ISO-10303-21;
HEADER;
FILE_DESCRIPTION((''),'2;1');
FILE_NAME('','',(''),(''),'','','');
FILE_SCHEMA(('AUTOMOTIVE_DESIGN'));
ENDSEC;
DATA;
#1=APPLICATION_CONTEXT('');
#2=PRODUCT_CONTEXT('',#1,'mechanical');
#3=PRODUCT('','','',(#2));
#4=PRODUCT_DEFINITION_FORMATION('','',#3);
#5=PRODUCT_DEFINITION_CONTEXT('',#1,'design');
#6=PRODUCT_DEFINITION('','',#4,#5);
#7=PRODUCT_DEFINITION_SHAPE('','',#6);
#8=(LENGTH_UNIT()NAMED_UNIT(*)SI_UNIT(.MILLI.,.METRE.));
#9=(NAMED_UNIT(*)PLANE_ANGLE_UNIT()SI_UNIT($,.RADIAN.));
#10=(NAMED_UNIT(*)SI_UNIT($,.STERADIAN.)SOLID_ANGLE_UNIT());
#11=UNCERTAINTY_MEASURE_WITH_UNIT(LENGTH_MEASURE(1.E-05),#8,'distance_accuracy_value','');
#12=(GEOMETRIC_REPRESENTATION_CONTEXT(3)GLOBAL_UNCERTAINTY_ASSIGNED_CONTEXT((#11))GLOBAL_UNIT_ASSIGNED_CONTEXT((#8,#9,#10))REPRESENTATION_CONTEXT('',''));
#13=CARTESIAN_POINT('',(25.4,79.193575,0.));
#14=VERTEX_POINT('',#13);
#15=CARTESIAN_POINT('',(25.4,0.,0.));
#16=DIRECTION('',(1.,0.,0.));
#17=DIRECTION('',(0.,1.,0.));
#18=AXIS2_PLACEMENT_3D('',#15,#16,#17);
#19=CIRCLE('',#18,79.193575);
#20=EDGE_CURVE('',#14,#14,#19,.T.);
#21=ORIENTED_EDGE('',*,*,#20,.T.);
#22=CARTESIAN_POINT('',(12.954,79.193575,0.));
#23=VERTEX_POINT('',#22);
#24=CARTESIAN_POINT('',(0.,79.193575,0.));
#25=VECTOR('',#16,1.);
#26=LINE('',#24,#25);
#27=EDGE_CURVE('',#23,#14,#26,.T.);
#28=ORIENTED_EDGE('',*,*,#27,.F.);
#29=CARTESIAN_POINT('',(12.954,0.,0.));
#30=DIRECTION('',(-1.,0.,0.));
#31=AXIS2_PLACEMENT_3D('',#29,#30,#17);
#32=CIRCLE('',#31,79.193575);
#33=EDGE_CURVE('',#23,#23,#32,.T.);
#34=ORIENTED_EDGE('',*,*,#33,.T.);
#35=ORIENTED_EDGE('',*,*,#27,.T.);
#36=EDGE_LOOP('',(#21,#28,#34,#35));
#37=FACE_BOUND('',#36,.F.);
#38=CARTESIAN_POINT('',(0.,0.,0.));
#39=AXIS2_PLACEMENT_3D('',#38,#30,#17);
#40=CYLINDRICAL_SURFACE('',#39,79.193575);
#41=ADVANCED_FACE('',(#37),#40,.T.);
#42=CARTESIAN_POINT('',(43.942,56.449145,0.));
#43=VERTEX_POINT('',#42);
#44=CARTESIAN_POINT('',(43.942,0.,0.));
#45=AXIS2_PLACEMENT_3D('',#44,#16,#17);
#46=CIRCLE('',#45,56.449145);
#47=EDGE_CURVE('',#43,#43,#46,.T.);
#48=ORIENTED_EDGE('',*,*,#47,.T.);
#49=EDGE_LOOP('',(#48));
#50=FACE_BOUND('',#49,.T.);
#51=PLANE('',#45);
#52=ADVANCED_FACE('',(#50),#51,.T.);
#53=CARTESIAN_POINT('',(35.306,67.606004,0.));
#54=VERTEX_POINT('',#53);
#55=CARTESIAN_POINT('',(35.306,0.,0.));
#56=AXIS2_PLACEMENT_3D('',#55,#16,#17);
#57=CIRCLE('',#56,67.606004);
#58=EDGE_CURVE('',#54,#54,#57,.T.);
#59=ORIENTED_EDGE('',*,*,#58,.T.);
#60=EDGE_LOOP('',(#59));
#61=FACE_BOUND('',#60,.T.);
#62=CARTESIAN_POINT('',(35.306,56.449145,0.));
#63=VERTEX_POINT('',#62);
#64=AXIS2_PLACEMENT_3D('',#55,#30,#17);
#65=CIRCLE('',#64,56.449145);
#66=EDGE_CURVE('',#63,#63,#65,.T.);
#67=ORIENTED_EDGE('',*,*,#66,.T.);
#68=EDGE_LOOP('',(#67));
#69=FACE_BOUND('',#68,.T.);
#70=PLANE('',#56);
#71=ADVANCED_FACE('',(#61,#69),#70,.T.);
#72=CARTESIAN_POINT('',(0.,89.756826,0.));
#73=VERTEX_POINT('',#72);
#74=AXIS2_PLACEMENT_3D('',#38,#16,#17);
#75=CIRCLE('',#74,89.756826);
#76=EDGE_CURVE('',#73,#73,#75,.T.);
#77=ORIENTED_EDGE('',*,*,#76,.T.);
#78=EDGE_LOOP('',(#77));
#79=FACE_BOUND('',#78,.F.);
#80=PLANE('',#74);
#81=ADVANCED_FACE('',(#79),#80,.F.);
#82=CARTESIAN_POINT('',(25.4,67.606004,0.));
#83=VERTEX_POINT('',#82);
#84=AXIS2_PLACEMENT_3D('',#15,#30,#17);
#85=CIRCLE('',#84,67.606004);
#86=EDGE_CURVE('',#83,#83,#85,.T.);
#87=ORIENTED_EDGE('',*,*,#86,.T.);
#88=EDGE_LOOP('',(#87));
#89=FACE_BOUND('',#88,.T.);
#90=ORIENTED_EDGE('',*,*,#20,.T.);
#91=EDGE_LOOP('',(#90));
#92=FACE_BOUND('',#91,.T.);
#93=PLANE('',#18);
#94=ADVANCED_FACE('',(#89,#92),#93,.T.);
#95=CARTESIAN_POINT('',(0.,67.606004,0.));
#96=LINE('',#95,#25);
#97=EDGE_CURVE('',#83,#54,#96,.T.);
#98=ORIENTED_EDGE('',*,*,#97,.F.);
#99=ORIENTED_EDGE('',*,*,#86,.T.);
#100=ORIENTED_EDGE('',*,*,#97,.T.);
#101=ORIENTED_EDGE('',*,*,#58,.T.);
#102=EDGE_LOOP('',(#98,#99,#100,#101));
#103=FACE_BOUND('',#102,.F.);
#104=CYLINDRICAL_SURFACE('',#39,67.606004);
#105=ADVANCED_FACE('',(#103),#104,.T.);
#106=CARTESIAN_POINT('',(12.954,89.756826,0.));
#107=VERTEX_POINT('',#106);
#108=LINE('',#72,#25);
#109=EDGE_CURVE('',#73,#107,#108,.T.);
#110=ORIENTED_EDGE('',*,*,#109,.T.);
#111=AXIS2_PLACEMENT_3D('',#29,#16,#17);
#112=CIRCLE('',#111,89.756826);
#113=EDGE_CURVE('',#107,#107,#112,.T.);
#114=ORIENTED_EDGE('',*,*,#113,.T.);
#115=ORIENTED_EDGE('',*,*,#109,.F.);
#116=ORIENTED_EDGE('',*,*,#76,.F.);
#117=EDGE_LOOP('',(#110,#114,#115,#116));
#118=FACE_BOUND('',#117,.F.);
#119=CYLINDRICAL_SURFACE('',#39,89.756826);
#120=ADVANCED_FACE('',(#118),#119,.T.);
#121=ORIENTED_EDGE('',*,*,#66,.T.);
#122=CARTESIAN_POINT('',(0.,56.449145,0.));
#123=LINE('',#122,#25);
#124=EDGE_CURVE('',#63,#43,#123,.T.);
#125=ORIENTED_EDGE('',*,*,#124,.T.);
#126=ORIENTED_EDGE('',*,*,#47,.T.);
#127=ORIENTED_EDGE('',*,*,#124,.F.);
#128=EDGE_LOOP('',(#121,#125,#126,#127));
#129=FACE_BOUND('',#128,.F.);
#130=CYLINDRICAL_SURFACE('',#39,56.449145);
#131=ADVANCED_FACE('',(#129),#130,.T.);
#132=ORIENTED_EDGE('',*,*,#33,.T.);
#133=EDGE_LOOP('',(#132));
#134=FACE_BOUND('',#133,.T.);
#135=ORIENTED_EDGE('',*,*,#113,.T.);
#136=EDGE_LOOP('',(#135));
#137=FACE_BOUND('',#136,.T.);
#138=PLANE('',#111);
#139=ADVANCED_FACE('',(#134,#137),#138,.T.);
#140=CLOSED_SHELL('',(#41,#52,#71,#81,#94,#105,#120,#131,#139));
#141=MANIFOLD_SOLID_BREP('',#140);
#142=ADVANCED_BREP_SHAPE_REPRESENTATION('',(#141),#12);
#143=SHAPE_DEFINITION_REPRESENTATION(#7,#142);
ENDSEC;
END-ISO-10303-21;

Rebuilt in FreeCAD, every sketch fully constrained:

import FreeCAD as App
import Part
import Sketcher

doc = App.newDocument("Part")
params = doc.addObject("Spreadsheet::Sheet", "Params")
for row, (alias, value) in enumerate([
    ("pad1_length", "0.51 in"),
    ("pad2_length", "1 in"),
    ("pad3_length", "1.39 in"),
    ("pad4_length", "1.73 in"),
], start=1):
    params.set(f"A{row}", alias)
    params.set(f"B{row}", "=" + value)
    params.setAlias(f"B{row}", alias)

body = doc.addObject("PartDesign::Body", "Body")

sketch1 = body.newObject("Sketcher::SketchObject", "Sketch")
sketch1.AttachmentSupport = (doc.getObject("YZ_Plane"), [""])
sketch1.MapMode = "FlatFace"
sketch1.addGeometry(Part.Circle(App.Vector(0, 0, 0), App.Vector(0, 0, 1), 89.756826), False)
sketch1.addConstraint([
    Sketcher.Constraint("Coincident", 0, 3, -1, 1),
    Sketcher.Constraint("Diameter", 0, 179.513652),
])
pad1 = body.newObject("PartDesign::Pad", "Pad")
pad1.Profile = sketch1
pad1.setExpression("Length", "Params.pad1_length")

sketch2 = body.newObject("Sketcher::SketchObject", "Sketch001")
sketch2.AttachmentSupport = (doc.getObject("YZ_Plane"), [""])
sketch2.MapMode = "FlatFace"
sketch2.addGeometry(Part.Circle(App.Vector(0, 0, 0), App.Vector(0, 0, 1), 79.193575), False)
sketch2.addConstraint([
    Sketcher.Constraint("Coincident", 0, 3, -1, 1),
    Sketcher.Constraint("Diameter", 0, 158.38715),
])
pad2 = body.newObject("PartDesign::Pad", "Pad001")
pad2.Profile = sketch2
pad2.setExpression("Length", "Params.pad2_length")

sketch3 = body.newObject("Sketcher::SketchObject", "Sketch002")
sketch3.AttachmentSupport = (doc.getObject("YZ_Plane"), [""])
sketch3.MapMode = "FlatFace"
sketch3.addGeometry(Part.Circle(App.Vector(0, 0, 0), App.Vector(0, 0, 1), 67.606004), False)
sketch3.addConstraint([
    Sketcher.Constraint("Coincident", 0, 3, -1, 1),
    Sketcher.Constraint("Diameter", 0, 135.212008),
])
pad3 = body.newObject("PartDesign::Pad", "Pad002")
pad3.Profile = sketch3
pad3.setExpression("Length", "Params.pad3_length")

sketch4 = body.newObject("Sketcher::SketchObject", "Sketch003")
sketch4.AttachmentSupport = (doc.getObject("YZ_Plane"), [""])
sketch4.MapMode = "FlatFace"
sketch4.addGeometry(Part.Circle(App.Vector(0, 0, 0), App.Vector(0, 0, 1), 56.449145), False)
sketch4.addConstraint([
    Sketcher.Constraint("Coincident", 0, 3, -1, 1),
    Sketcher.Constraint("Diameter", 0, 112.89829),
])
pad4 = body.newObject("PartDesign::Pad", "Pad003")
pad4.Profile = sketch4
pad4.setExpression("Length", "Params.pad4_length")

doc.recompute()
